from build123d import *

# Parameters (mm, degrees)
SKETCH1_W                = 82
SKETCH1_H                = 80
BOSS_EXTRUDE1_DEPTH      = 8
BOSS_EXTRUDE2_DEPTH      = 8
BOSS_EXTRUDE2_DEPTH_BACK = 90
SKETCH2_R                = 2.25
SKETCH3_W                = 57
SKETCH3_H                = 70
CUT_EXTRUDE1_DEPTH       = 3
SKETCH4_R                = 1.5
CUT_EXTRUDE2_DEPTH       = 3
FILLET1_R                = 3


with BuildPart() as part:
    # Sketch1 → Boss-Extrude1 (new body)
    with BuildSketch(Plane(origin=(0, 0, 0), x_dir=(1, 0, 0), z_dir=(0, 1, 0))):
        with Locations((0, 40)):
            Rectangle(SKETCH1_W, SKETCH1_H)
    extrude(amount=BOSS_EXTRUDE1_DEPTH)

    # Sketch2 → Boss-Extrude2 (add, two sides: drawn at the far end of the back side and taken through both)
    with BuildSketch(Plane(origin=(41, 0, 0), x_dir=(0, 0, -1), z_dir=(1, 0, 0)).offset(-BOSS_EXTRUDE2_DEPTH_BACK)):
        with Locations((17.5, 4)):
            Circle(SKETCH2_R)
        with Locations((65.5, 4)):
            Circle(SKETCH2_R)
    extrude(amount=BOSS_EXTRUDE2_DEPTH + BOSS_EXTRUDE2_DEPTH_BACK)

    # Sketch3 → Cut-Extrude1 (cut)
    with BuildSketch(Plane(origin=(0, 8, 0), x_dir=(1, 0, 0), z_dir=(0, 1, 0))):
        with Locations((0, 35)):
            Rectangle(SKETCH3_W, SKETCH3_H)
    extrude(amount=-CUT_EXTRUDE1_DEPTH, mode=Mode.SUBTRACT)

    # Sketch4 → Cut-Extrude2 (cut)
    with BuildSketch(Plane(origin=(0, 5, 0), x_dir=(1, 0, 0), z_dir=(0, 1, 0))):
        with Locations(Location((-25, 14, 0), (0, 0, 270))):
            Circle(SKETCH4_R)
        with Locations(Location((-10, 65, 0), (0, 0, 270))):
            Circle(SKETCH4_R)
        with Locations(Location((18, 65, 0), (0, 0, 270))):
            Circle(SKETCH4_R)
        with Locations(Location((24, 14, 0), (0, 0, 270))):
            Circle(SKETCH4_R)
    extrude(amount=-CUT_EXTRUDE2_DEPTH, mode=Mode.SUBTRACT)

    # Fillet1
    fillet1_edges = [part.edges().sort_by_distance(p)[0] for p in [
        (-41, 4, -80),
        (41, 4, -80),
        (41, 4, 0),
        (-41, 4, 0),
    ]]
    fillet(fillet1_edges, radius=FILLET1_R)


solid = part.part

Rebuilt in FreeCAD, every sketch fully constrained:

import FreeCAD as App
import Part
import Sketcher
from FreeCAD import Vector


def edges_at(feature, points):
    """Names of the edges that pass closest to the given points."""
    edges = feature.Shape.Edges
    near = lambda p: min(range(len(edges)), key=lambda i: edges[i].distToShape(Part.Vertex(*p))[0])
    return sorted({f"Edge{near(p) + 1}" for p in points})

doc = App.newDocument("Part")
params = doc.addObject("Spreadsheet::Sheet", "Params")
for row, (alias, value) in enumerate([
    ("sketch1_width", "82 mm"),
    ("sketch1_height", "80 mm"),
    ("pad1_length", "8 mm"),
    ("sketch2_diameter", "4.5 mm"),
    ("pad2_length", "8 mm"),
    ("pad2_length2", "90 mm"),
    ("sketch3_width", "57 mm"),
    ("sketch3_height", "70 mm"),
    ("pocket1_length", "3 mm"),
    ("sketch4_diameter", "3 mm"),
    ("pocket2_length", "3 mm"),
    ("fillet_radius", "3 mm"),
], start=1):
    params.set(f"A{row}", alias)
    params.set(f"B{row}", "=" + value)
    params.setAlias(f"B{row}", alias)

body = doc.addObject("PartDesign::Body", "Body")

sketch1 = body.newObject("Sketcher::SketchObject", "Sketch")
sketch1.AttachmentSupport = (doc.getObject("XZ_Plane"), [""])
sketch1.MapMode = "FlatFace"
sketch1.addGeometry([
    Part.LineSegment(Vector(-41, -80, 0), Vector(-41, 0, 0)),
    Part.LineSegment(Vector(-41, 0, 0), Vector(41, 0, 0)),
    Part.LineSegment(Vector(41, 0, 0), Vector(41, -80, 0)),
    Part.LineSegment(Vector(41, -80, 0), Vector(-41, -80, 0)),
], False)
sketch1.addConstraint([
    Sketcher.Constraint("Coincident", 0, 2, 1, 1),
    Sketcher.Constraint("Coincident", 1, 2, 2, 1),
    Sketcher.Constraint("Coincident", 2, 2, 3, 1),
    Sketcher.Constraint("Coincident", 3, 2, 0, 1),
    Sketcher.Constraint("Vertical", 0),
    Sketcher.Constraint("Horizontal", 1),
    Sketcher.Constraint("Vertical", 2),
    Sketcher.Constraint("Horizontal", 3),
    Sketcher.Constraint("Symmetric", 0, 2, 1, 2, -1, 1),
    Sketcher.Constraint("DistanceX", 1, 1, 1, 2, 82.0),
    Sketcher.Constraint("DistanceY", 0, 1, 0, 2, 80.0),
])
sketch1.setExpression("Constraints[9]", "Params.sketch1_width")
sketch1.setExpression("Constraints[10]", "Params.sketch1_height")
pad1 = body.newObject("PartDesign::Pad", "Pad")
pad1.Profile = sketch1
pad1.setExpression("Length", "Params.pad1_length")
pad1.Reversed = True

sketch2 = body.newObject("Sketcher::SketchObject", "Sketch001")
sketch2.AttachmentSupport = (doc.getObject("YZ_Plane"), [""])
sketch2.MapMode = "FlatFace"
sketch2.AttachmentOffset = App.Placement(Vector(0, 0, 41), App.Rotation())
sketch2.addGeometry([
    Part.Circle(Vector(4, -17.5, 0), Vector(0, 0, 1), 2.2),
    Part.Circle(Vector(4, -65.5, 0), Vector(0, 0, 1), 2.2),
], False)
sketch2.addConstraint([
    Sketcher.Constraint("Equal", 0, 1),
    Sketcher.Constraint("Vertical", 0, 3, 1, 3),
    Sketcher.Constraint("Diameter", 0, 4.5),
    Sketcher.Constraint("DistanceX", -1, 1, 0, 3, 4.0),
    Sketcher.Constraint("DistanceY", 1, 3, 0, 3, 48.0),
    Sketcher.Constraint("DistanceY", 0, 3, -1, 1, 17.5),
])
sketch2.setExpression("Constraints[2]", "Params.sketch2_diameter")
pad2 = body.newObject("PartDesign::Pad", "Pad001")
pad2.Profile = sketch2
pad2.Type = "TwoLengths"
pad2.setExpression("Length", "Params.pad2_length")
pad2.setExpression("Length2", "Params.pad2_length2")

sketch3 = body.newObject("Sketcher::SketchObject", "Sketch002")
sketch3.AttachmentSupport = (doc.getObject("XZ_Plane"), [""])
sketch3.MapMode = "FlatFace"
sketch3.AttachmentOffset = App.Placement(Vector(0, 0, -8), App.Rotation())
sketch3.addGeometry([
    Part.LineSegment(Vector(-28, -70, 0), Vector(-28, 0, 0)),
    Part.LineSegment(Vector(-28, 0, 0), Vector(28, 0, 0)),
    Part.LineSegment(Vector(28, 0, 0), Vector(28, -70, 0)),
    Part.LineSegment(Vector(28, -70, 0), Vector(-28, -70, 0)),
], False)
sketch3.addConstraint([
    Sketcher.Constraint("Coincident", 0, 2, 1, 1),
    Sketcher.Constraint("Coincident", 1, 2, 2, 1),
    Sketcher.Constraint("Coincident", 2, 2, 3, 1),
    Sketcher.Constraint("Coincident", 3, 2, 0, 1),
    Sketcher.Constraint("Vertical", 0),
    Sketcher.Constraint("Horizontal", 1),
    Sketcher.Constraint("Vertical", 2),
    Sketcher.Constraint("Horizontal", 3),
    Sketcher.Constraint("Symmetric", 0, 2, 1, 2, -1, 1),
    Sketcher.Constraint("DistanceX", 1, 1, 1, 2, 57.0),
    Sketcher.Constraint("DistanceY", 0, 1, 0, 2, 70.0),
])
sketch3.setExpression("Constraints[9]", "Params.sketch3_width")
sketch3.setExpression("Constraints[10]", "Params.sketch3_height")
pocket1 = body.newObject("PartDesign::Pocket", "Pocket")
pocket1.Profile = sketch3
pocket1.setExpression("Length", "Params.pocket1_length")
pocket1.Reversed = True

sketch4 = body.newObject("Sketcher::SketchObject", "Sketch003")
sketch4.AttachmentSupport = (doc.getObject("XZ_Plane"), [""])
sketch4.MapMode = "FlatFace"
sketch4.AttachmentOffset = App.Placement(Vector(0, 0, -5), App.Rotation())
sketch4.addGeometry([
    Part.Circle(Vector(-25, -14, 0), Vector(0, 0, 1), 1.5),
    Part.Circle(Vector(-10, -65, 0), Vector(0, 0, 1), 1.5),
    Part.Circle(Vector(18, -65, 0), Vector(0, 0, 1), 1.5),
    Part.Circle(Vector(24, -14, 0), Vector(0, 0, 1), 1.5),
], False)
sketch4.addConstraint([
    Sketcher.Constraint("Equal", 0, 1),
    Sketcher.Constraint("Equal", 1, 2),
    Sketcher.Constraint("Equal", 2, 3),
    Sketcher.Constraint("Horizontal", 1, 3, 2, 3),
    Sketcher.Constraint("Horizontal", 0, 3, 3, 3),
    Sketcher.Constraint("Diameter", 0, 3.0),
    Sketcher.Constraint("DistanceX", 0, 3, -1, 1, 25.0),
    Sketcher.Constraint("DistanceY", 0, 3, -1, 1, 14.0),
    Sketcher.Constraint("DistanceX", 1, 3, -1, 1, 10.0),
    Sketcher.Constraint("DistanceY", 1, 3, -1, 1, 65.0),
    Sketcher.Constraint("DistanceX", -1, 1, 2, 3, 18.0),
    Sketcher.Constraint("DistanceX", -1, 1, 3, 3, 24.0),
])
sketch4.setExpression("Constraints[5]", "Params.sketch4_diameter")
pocket2 = body.newObject("PartDesign::Pocket", "Pocket001")
pocket2.Profile = sketch4
pocket2.setExpression("Length", "Params.pocket2_length")
pocket2.Reversed = True
doc.recompute()

fillet = body.newObject("PartDesign::Fillet", "Fillet")
fillet.Base = (pocket2, edges_at(pocket2, [
    (-41, 4, -80),
    (41, 4, -80),
    (41, 4, 0),
    (-41, 4, 0),
]))
fillet.setExpression("Radius", "Params.fillet_radius")

doc.recompute()
